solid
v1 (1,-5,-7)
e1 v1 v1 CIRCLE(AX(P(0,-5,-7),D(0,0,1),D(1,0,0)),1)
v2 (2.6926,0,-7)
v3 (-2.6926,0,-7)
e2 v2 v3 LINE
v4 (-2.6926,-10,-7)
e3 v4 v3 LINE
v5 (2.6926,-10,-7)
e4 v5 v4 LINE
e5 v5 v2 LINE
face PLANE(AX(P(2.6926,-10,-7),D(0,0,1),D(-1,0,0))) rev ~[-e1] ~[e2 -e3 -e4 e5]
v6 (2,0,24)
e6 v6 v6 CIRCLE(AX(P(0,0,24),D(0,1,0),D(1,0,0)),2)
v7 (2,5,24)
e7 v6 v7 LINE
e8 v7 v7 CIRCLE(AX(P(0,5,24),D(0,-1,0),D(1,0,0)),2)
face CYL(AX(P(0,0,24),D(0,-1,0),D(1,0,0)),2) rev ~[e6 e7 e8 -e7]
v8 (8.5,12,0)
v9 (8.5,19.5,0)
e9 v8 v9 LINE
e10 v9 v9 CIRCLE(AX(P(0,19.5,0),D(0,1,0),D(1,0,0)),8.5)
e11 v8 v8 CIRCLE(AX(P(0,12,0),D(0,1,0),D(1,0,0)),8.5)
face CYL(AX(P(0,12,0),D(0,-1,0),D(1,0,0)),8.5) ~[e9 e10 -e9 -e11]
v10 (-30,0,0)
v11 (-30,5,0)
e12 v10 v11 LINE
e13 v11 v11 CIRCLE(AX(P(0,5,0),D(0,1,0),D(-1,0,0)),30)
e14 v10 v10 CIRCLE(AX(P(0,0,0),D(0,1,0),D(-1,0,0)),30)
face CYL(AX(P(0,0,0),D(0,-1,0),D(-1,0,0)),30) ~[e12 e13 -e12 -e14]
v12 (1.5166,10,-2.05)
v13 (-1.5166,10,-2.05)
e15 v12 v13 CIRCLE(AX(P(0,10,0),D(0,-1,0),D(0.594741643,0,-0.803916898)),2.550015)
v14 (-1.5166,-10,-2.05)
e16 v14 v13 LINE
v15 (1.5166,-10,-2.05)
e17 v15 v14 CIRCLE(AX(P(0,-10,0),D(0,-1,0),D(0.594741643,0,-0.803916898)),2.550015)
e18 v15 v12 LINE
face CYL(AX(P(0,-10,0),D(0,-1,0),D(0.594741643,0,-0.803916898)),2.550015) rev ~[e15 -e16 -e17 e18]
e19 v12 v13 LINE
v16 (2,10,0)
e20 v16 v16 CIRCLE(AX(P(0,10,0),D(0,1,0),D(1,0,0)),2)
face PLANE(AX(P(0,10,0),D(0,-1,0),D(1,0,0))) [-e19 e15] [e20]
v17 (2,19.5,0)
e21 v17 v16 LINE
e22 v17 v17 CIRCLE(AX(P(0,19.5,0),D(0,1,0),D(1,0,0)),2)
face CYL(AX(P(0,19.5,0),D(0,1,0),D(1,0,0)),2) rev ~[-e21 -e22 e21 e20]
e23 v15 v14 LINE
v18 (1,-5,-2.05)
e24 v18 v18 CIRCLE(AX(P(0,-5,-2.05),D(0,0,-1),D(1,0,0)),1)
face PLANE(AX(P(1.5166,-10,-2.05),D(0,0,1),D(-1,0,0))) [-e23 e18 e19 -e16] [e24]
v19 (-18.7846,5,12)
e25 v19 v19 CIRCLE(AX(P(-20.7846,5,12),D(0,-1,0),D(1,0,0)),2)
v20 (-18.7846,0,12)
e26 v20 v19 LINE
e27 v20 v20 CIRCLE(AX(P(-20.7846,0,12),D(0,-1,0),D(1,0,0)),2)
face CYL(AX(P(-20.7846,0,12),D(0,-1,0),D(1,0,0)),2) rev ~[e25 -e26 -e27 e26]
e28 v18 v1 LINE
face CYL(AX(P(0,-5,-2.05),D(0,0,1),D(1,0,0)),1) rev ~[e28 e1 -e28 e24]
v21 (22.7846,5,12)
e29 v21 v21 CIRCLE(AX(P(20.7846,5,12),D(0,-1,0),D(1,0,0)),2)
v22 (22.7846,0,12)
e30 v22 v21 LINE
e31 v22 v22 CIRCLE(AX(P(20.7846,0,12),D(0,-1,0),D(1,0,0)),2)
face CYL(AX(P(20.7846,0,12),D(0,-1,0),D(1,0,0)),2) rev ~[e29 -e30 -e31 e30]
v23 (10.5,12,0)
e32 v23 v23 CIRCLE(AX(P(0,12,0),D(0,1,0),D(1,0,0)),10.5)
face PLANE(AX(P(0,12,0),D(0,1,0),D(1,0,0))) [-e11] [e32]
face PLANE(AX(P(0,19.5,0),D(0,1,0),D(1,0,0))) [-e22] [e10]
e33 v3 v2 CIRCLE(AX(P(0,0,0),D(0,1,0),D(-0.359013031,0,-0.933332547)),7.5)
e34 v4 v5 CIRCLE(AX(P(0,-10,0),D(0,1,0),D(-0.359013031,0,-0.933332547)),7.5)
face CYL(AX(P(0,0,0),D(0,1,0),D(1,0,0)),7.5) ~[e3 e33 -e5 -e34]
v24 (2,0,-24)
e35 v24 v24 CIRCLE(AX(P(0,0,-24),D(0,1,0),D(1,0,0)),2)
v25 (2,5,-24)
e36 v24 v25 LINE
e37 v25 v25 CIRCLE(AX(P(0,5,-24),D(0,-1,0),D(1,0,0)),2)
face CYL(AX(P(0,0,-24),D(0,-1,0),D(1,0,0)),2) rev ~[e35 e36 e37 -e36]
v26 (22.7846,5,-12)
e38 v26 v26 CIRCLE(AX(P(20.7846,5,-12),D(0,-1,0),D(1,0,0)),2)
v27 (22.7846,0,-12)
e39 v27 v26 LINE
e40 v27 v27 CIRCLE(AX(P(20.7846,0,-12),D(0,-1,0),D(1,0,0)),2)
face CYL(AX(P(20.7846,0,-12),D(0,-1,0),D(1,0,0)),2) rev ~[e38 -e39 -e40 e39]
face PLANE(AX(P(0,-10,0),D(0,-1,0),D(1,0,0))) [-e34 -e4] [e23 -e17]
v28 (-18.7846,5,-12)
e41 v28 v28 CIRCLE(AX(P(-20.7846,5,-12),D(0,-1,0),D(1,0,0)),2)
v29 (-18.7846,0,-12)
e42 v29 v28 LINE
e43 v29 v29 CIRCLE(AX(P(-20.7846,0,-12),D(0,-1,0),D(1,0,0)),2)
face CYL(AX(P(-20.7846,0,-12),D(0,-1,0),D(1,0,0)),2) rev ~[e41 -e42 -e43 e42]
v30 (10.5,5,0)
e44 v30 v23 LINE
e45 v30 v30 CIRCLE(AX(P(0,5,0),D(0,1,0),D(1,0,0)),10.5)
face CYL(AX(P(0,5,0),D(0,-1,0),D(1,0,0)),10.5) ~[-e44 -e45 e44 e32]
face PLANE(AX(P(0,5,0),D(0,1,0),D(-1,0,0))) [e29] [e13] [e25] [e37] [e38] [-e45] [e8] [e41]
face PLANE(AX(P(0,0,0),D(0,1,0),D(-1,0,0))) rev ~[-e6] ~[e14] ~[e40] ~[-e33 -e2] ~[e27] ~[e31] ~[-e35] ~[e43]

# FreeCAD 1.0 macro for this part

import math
import FreeCAD as App
import Part
import Sketcher

doc = App.newDocument("Part")
body = doc.addObject("PartDesign::Body", "Body")

# Sketch on XZ plane
sketch1 = body.newObject("Sketcher::SketchObject", "Sketch")
sketch1.AttachmentSupport = (doc.getObject("XZ_Plane"), [""])
sketch1.MapMode = "FlatFace"
sketch1.addGeometry(Part.Circle(App.Vector(0, 0, 0), App.Vector(0, 0, 1), 30), False)
sketch1.addConstraint([
    Sketcher.Constraint("Coincident", 0, 3, -1, 1),
    Sketcher.Constraint("Diameter", 0, 60.0),
])
pad1 = body.newObject("PartDesign::Pad", "Pad")
pad1.Profile = sketch1
pad1.Length = 5
pad1.Reversed = True

# Sketch on XZ plane
sketch2 = body.newObject("Sketcher::SketchObject", "Sketch001")
sketch2.AttachmentSupport = (doc.getObject("XZ_Plane"), [""])
sketch2.MapMode = "FlatFace"
sketch2.AttachmentOffset = App.Placement(App.Vector(0, 0, -5), App.Rotation())
sketch2.addGeometry(Part.Circle(App.Vector(0, 0, 0), App.Vector(0, 0, 1), 10), False)
sketch2.addConstraint([
    Sketcher.Constraint("Coincident", 0, 3, -1, 1),
    Sketcher.Constraint("Diameter", 0, 21.0),
])
pad2 = body.newObject("PartDesign::Pad", "Pad001")
pad2.Profile = sketch2
pad2.Length = 7
pad2.Reversed = True

# Sketch on XZ plane
sketch3 = body.newObject("Sketcher::SketchObject", "Sketch002")
sketch3.AttachmentSupport = (doc.getObject("XZ_Plane"), [""])
sketch3.MapMode = "FlatFace"
sketch3.addGeometry(Part.Circle(App.Vector(0, 0, 0), App.Vector(0, 0, 1), 8), False)
sketch3.addConstraint([
    Sketcher.Constraint("Coincident", 0, 3, -1, 1),
    Sketcher.Constraint("Diameter", 0, 15.0),
])
pad3 = body.newObject("PartDesign::Pad", "Pad002")
pad3.Profile = sketch3
pad3.Length = 10

# Sketch on XZ plane
sketch4 = body.newObject("Sketcher::SketchObject", "Sketch003")
sketch4.AttachmentSupport = (doc.getObject("XZ_Plane"), [""])
sketch4.MapMode = "FlatFace"
sketch4.AttachmentOffset = App.Placement(App.Vector(0, 0, 10), App.Rotation())
sketch4.addGeometry([
    Part.LineSegment(App.Vector(-1.5, -2, 0), App.Vector(1.5, -2, 0)),
    Part.ArcOfCircle(Part.Circle(App.Vector(0, 0, 0), App.Vector(0, 0, 1), 2.6), math.radians(-54), math.radians(234)),
], False)
sketch4.addConstraint([
    Sketcher.Constraint("Coincident", 0, 1, 1, 2),
    Sketcher.Constraint("Coincident", 1, 1, 0, 2),
    Sketcher.Constraint("Horizontal", 0),
    Sketcher.Constraint("Coincident", 1, 3, -1, 1),
    Sketcher.Constraint("Radius", 1, 2.55),
    Sketcher.Constraint("DistanceY", 0, 1, -1, 1, 2.05),
])
pocket1 = body.newObject("PartDesign::Pocket", "Pocket")
pocket1.Profile = sketch4
pocket1.Length = 20

# Sketch on XY plane
sketch5 = body.newObject("Sketcher::SketchObject", "Sketch004")
sketch5.AttachmentSupport = (doc.getObject("XY_Plane"), [""])
sketch5.MapMode = "FlatFace"
sketch5.AttachmentOffset = App.Placement(App.Vector(0, 0, -2.05), App.Rotation())
sketch5.addGeometry(Part.Circle(App.Vector(0, -5, 0), App.Vector(0, 0, 1), 1), False)
sketch5.addConstraint([
    Sketcher.Constraint("PointOnObject", 0, 3, -2),
    Sketcher.Constraint("Diameter", 0, 2.0),
    Sketcher.Constraint("DistanceY", 0, 3, -1, 1, 5.0),
])
pocket2 = body.newObject("PartDesign::Pocket", "Pocket001")
pocket2.Profile = sketch5
pocket2.Length = 20

# Sketch on XZ plane
sketch6 = body.newObject("Sketcher::SketchObject", "Sketch005")
sketch6.AttachmentSupport = (doc.getObject("XZ_Plane"), [""])
sketch6.MapMode = "FlatFace"
sketch6.AttachmentOffset = App.Placement(App.Vector(0, 0, 10), App.Rotation())
sketch6.addGeometry([
    Part.LineSegment(App.Vector(3, -7, 0), App.Vector(-3, -7, 0)),
    Part.ArcOfCircle(Part.Circle(App.Vector(0, 0, 0), App.Vector(0, 0, 1), 8), math.radians(-111), math.radians(-69)),
], False)
sketch6.addConstraint([
    Sketcher.Constraint("Coincident", 0, 1, 1, 2),
    Sketcher.Constraint("Coincident", 1, 1, 0, 2),
    Sketcher.Constraint("Horizontal", 0),
    Sketcher.Constraint("Coincident", 1, 3, -1, 1),
    Sketcher.Constraint("DistanceY", 0, 1, -1, 1, 7.0),
    Sketcher.Constraint("Radius", 1, 7.5),
])
pocket3 = body.newObject("PartDesign::Pocket", "Pocket002")
pocket3.Profile = sketch6
pocket3.Length = 10

# Sketch on XZ plane
sketch7 = body.newObject("Sketcher::SketchObject", "Sketch006")
sketch7.AttachmentSupport = (doc.getObject("XZ_Plane"), [""])
sketch7.MapMode = "FlatFace"
sketch7.addGeometry([
    Part.Circle(App.Vector(0, 24, 0), App.Vector(0, 0, 1), 2),  # 0
    Part.Circle(App.Vector(0, -24, 0), App.Vector(0, 0, 1), 2),  # 1
    Part.Circle(App.Vector(20.8, -12, 0), App.Vector(0, 0, 1), 2),  # 2
    Part.Circle(App.Vector(20.8, 12, 0), App.Vector(0, 0, 1), 2),  # 3
    Part.Circle(App.Vector(-20.8, 12, 0), App.Vector(0, 0, 1), 2),  # 4
    Part.Circle(App.Vector(-20.8, -12, 0), App.Vector(0, 0, 1), 2),  # 5
], False)
sketch7.addConstraint([
    Sketcher.Constraint("Equal", 0, 1),
    Sketcher.Constraint("Equal", 1, 2),
    Sketcher.Constraint("Equal", 2, 3),
    Sketcher.Constraint("Equal", 3, 4),
    Sketcher.Constraint("Equal", 4, 5),
    Sketcher.Constraint("Symmetric", 0, 3, 1, 3, -1, 1),
    Sketcher.Constraint("Symmetric", 2, 3, 4, 3, -1, 1),
    Sketcher.Constraint("Symmetric", 3, 3, 5, 3, -1, 1),
    Sketcher.Constraint("Symmetric", 3, 3, 4, 3, -2),
    Sketcher.Constraint("PointOnObject", 0, 3, -2),
    Sketcher.Constraint("Diameter", 0, 4.0),
    Sketcher.Constraint("DistanceY", -1, 1, 0, 3, 24.0),
    Sketcher.Constraint("DistanceY", 2, 3, 3, 3, 24.0),
    Sketcher.Constraint("DistanceX", -1, 1, 2, 3, 20.7846),
])
pocket4 = body.newObject("PartDesign::Pocket", "Pocket003")
pocket4.Profile = sketch7
pocket4.Length = 20

# Sketch on XZ plane
sketch8 = body.newObject("Sketcher::SketchObject", "Sketch007")
sketch8.AttachmentSupport = (doc.getObject("XZ_Plane"), [""])
sketch8.MapMode = "FlatFace"
sketch8.AttachmentOffset = App.Placement(App.Vector(0, 0, -12), App.Rotation())
sketch8.addGeometry(Part.Circle(App.Vector(0, 0, 0), App.Vector(0, 0, 1), 8), False)
sketch8.addConstraint([
    Sketcher.Constraint("Coincident", 0, 3, -1, 1),
    Sketcher.Constraint("Diameter", 0, 17.0),
])
pad4 = body.newObject("PartDesign::Pad", "Pad003")
pad4.Profile = sketch8
pad4.Length = 7.5
pad4.Reversed = True

# Sketch on XZ plane
sketch9 = body.newObject("Sketcher::SketchObject", "Sketch008")
sketch9.AttachmentSupport = (doc.getObject("XZ_Plane"), [""])
sketch9.MapMode = "FlatFace"
sketch9.AttachmentOffset = App.Placement(App.Vector(0, 0, -19.5), App.Rotation())
sketch9.addGeometry(Part.Circle(App.Vector(0, 0, 0), App.Vector(0, 0, 1), 2), False)
sketch9.addConstraint([
    Sketcher.Constraint("Coincident", 0, 3, -1, 1),
    Sketcher.Constraint("Diameter", 0, 4.0),
])
pocket5 = body.newObject("PartDesign::Pocket", "Pocket004")
pocket5.Profile = sketch9
pocket5.Length = 50
pocket5.Reversed = True

doc.recompute()
